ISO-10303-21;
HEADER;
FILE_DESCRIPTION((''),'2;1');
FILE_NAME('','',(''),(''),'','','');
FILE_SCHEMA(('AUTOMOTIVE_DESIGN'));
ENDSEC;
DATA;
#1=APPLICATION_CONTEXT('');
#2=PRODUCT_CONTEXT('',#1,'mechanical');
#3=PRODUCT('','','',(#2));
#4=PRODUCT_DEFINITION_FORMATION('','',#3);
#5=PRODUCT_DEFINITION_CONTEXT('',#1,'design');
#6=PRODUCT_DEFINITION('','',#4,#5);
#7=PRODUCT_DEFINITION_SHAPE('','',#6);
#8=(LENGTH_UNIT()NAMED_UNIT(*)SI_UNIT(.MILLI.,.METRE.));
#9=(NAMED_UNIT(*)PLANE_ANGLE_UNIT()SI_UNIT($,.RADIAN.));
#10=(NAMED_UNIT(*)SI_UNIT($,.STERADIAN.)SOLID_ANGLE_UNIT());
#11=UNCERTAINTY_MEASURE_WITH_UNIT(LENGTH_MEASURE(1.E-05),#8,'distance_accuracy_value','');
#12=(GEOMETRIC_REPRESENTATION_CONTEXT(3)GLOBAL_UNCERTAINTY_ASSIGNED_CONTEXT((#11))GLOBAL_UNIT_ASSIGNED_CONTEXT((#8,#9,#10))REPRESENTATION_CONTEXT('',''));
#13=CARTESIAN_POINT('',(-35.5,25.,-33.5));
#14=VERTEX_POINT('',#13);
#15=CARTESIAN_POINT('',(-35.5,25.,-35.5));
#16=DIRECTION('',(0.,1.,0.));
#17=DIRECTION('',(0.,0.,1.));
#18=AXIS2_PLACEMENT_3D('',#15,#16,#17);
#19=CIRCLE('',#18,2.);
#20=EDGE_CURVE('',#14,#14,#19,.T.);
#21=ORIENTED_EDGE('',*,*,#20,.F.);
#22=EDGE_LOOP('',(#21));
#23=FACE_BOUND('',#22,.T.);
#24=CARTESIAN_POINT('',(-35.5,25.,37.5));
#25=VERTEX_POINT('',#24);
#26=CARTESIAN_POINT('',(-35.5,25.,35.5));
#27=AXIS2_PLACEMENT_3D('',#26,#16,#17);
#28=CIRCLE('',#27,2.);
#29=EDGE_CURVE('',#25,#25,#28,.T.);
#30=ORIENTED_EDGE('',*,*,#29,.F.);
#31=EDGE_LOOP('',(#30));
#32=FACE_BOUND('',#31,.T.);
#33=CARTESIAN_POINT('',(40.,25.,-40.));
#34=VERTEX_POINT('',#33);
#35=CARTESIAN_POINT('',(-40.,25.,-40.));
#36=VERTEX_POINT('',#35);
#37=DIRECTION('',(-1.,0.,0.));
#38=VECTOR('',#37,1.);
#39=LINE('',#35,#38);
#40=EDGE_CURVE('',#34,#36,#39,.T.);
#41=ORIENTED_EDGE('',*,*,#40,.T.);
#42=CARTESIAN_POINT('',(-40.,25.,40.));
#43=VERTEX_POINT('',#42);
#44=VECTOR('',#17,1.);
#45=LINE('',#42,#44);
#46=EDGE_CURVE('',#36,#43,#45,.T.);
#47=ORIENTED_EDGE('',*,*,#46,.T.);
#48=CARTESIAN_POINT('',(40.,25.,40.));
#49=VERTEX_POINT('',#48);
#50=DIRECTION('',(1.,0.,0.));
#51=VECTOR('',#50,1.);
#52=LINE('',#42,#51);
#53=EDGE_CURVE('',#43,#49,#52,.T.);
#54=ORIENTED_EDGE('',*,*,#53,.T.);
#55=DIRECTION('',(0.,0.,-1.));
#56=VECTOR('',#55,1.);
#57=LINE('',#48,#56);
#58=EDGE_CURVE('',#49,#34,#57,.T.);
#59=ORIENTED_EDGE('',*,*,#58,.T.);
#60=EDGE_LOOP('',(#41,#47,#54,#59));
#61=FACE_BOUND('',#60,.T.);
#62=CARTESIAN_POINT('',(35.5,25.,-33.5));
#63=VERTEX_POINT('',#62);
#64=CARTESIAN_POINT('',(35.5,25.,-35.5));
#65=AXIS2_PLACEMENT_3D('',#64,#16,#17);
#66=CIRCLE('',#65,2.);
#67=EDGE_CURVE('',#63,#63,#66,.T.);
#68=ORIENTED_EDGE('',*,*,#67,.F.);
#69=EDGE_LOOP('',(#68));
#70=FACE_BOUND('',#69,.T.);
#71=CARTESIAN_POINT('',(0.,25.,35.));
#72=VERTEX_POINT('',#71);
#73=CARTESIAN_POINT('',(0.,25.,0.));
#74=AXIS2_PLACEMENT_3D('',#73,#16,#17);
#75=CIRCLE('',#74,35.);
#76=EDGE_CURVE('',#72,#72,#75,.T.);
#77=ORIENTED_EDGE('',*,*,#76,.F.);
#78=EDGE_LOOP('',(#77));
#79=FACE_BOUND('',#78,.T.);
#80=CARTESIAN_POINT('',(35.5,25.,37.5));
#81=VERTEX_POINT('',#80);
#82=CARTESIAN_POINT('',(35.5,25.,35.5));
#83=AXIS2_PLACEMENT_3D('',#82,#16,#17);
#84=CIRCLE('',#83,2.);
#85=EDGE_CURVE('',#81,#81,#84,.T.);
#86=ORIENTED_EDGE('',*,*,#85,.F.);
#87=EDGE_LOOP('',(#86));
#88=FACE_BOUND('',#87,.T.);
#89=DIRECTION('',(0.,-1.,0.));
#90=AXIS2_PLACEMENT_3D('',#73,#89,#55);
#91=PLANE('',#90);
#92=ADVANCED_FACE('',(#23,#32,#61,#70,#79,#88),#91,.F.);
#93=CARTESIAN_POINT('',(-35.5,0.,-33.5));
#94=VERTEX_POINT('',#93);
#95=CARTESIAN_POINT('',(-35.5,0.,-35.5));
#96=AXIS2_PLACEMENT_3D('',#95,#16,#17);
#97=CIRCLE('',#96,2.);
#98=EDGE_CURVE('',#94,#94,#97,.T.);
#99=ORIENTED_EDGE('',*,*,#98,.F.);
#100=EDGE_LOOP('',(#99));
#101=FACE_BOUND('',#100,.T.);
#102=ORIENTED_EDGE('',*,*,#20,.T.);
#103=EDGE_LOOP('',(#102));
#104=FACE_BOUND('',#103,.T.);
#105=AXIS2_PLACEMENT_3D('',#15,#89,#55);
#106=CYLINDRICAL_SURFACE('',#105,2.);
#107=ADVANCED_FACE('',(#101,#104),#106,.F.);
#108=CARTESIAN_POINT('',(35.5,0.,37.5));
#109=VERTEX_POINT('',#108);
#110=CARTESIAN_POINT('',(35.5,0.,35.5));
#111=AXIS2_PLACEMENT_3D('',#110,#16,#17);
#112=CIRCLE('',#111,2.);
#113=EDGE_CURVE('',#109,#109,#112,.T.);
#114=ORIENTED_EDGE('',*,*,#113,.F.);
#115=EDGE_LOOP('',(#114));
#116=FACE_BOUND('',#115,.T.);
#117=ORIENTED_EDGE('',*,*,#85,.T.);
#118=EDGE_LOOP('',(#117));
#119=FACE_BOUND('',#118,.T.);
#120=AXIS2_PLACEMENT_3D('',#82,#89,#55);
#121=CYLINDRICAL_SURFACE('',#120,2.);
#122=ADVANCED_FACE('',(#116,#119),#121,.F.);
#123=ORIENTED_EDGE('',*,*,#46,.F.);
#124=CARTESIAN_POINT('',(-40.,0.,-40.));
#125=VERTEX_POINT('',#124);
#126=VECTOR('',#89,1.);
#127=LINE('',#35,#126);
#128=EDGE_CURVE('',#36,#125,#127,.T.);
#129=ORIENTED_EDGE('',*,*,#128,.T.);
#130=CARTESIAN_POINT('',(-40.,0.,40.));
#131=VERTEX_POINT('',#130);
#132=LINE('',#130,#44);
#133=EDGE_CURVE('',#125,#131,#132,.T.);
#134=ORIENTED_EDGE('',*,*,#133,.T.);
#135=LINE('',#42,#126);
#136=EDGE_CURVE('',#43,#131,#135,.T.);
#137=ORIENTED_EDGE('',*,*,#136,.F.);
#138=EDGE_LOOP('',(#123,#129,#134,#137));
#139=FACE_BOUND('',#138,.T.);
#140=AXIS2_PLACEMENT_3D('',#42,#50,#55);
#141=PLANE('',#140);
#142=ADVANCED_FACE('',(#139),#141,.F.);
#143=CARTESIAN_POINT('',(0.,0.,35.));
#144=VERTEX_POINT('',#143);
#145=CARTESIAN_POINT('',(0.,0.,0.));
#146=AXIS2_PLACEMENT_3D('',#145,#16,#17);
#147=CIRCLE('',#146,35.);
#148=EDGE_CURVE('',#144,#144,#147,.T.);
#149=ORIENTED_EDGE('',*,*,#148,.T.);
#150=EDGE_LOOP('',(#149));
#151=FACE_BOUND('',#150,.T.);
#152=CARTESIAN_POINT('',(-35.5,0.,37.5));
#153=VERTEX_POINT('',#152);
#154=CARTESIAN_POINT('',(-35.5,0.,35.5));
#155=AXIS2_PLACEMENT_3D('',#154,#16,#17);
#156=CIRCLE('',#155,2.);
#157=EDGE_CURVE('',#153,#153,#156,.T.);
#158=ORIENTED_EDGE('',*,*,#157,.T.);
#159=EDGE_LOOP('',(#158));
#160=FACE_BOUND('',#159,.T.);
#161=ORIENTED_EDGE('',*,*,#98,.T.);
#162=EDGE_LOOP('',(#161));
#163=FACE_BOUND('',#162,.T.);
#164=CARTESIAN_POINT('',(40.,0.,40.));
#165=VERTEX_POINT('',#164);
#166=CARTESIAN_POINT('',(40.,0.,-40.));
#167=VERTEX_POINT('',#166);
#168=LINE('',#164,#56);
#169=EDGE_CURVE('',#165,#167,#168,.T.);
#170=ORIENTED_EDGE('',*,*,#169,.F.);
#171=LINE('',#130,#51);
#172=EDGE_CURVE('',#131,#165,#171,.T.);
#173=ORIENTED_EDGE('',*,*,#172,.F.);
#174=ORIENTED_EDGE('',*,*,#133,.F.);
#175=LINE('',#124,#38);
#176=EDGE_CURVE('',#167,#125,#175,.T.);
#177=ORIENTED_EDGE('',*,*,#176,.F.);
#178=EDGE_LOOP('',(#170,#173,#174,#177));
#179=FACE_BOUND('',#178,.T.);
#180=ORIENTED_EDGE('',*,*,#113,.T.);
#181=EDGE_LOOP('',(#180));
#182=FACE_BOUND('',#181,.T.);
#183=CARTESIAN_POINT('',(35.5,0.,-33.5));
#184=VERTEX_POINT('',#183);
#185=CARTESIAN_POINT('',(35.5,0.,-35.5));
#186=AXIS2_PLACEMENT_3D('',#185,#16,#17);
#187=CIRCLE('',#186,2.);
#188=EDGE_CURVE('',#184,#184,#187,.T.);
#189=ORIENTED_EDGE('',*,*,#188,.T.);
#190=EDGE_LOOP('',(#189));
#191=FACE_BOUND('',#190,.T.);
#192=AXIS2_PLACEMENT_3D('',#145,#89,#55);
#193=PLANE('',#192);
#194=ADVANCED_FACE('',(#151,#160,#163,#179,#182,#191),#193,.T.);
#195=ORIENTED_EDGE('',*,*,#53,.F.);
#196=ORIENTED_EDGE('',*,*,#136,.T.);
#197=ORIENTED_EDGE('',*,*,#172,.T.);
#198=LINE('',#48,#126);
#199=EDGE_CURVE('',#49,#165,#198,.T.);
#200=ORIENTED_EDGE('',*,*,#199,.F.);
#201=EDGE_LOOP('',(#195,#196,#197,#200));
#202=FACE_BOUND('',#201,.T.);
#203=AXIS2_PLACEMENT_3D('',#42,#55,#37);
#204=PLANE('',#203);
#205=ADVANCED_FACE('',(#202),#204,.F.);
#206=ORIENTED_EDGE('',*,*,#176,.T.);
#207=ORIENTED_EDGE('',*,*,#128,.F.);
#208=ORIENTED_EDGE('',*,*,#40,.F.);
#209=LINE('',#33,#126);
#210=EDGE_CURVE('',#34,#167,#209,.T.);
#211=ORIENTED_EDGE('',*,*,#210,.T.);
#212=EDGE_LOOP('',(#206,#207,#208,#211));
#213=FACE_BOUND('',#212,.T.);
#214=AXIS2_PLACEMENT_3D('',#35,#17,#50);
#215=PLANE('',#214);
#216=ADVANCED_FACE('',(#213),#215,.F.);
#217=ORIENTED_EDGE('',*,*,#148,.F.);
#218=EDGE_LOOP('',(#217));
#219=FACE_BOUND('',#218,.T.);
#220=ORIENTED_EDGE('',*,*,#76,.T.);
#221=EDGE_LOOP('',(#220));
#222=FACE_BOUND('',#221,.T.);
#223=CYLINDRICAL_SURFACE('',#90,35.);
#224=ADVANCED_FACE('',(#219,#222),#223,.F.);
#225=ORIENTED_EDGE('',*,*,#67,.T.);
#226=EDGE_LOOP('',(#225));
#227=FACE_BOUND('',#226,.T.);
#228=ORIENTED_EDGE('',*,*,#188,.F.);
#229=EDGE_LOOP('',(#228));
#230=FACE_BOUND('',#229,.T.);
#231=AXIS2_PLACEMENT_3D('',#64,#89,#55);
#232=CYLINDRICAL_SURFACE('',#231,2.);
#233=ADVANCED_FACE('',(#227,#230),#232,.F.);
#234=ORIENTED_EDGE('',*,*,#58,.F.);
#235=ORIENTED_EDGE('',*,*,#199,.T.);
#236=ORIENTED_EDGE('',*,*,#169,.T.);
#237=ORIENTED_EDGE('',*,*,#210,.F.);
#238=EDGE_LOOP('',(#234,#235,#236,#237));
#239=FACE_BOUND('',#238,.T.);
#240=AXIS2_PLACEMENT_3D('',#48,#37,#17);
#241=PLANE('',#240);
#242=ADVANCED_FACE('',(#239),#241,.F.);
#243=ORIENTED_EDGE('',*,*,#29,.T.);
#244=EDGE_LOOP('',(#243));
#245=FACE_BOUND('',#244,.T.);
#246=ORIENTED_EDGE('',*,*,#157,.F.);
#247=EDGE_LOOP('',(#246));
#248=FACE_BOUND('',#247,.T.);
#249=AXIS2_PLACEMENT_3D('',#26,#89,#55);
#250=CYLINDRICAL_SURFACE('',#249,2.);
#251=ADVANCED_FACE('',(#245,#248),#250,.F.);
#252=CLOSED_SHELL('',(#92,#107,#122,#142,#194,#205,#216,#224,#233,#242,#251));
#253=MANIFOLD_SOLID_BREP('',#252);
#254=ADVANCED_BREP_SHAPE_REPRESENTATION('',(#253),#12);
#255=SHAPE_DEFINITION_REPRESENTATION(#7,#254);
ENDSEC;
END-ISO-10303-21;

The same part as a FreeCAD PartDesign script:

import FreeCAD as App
import Part
import Sketcher


def add_polygon(sketch, points):
    """Adds a closed chain of lines whose ends are joined by coincident constraints."""
    first, n = sketch.GeometryCount, len(points)
    for a, b in zip(points, points[1:] + points[:1]):
        sketch.addGeometry(Part.LineSegment(App.Vector(*a, 0), App.Vector(*b, 0)), False)
    for i in range(n):
        sketch.addConstraint(Sketcher.Constraint("Coincident", first + i, 2, first + (i + 1) % n, 1))

doc = App.newDocument("Part")
body = doc.addObject("PartDesign::Body", "Body")

sketch1 = body.newObject("Sketcher::SketchObject", "Sketch")
sketch1.AttachmentSupport = (doc.getObject("XZ_Plane"), [""])
sketch1.MapMode = "FlatFace"
add_polygon(sketch1, [(-40, -40), (-40, 40), (40, 40), (40, -40)])
sketch1.addGeometry(Part.Circle(App.Vector(-35.5, 35.5, 0), App.Vector(0, 0, 1), 2), False)
sketch1.addGeometry(Part.Circle(App.Vector(35.5, 35.5, 0), App.Vector(0, 0, 1), 2), False)
sketch1.addGeometry(Part.Circle(App.Vector(-35.5, -35.5, 0), App.Vector(0, 0, 1), 2), False)
sketch1.addGeometry(Part.Circle(App.Vector(0, 0, 0), App.Vector(0, 0, 1), 35), False)
sketch1.addGeometry(Part.Circle(App.Vector(35.5, -35.5, 0), App.Vector(0, 0, 1), 2), False)
sketch1.addConstraint([
    Sketcher.Constraint("Vertical", 0),
    Sketcher.Constraint("Horizontal", 1),
    Sketcher.Constraint("Vertical", 2),
    Sketcher.Constraint("Horizontal", 3),
    Sketcher.Constraint("Coincident", 7, 3, -1, 1),
    Sketcher.Constraint("Equal", 4, 5),
    Sketcher.Constraint("Equal", 5, 6),
    Sketcher.Constraint("Equal", 6, 8),
    Sketcher.Constraint("Symmetric", 5, 3, 6, 3, -1, 1),
    Sketcher.Constraint("Symmetric", 4, 3, 8, 3, -1, 1),
    Sketcher.Constraint("Symmetric", 0, 2, 2, 2, -1, 1),
    Sketcher.Constraint("Symmetric", 4, 3, 5, 3, -2),
    Sketcher.Constraint("Equal", 3, 0),
    Sketcher.Constraint("Diameter", 4, 4.0),
    Sketcher.Constraint("Diameter", 7, 70.0),
    Sketcher.Constraint("DistanceX", 1, 1, 1, 2, 80.0),
    Sketcher.Constraint("DistanceX", 4, 3, 5, 3, 71.0),
    Sketcher.Constraint("DistanceY", 6, 3, 4, 3, 71.0),
])
pad1 = body.newObject("PartDesign::Pad", "Pad")
pad1.Profile = sketch1
pad1.Length = 25
pad1.Reversed = True

doc.recompute()
